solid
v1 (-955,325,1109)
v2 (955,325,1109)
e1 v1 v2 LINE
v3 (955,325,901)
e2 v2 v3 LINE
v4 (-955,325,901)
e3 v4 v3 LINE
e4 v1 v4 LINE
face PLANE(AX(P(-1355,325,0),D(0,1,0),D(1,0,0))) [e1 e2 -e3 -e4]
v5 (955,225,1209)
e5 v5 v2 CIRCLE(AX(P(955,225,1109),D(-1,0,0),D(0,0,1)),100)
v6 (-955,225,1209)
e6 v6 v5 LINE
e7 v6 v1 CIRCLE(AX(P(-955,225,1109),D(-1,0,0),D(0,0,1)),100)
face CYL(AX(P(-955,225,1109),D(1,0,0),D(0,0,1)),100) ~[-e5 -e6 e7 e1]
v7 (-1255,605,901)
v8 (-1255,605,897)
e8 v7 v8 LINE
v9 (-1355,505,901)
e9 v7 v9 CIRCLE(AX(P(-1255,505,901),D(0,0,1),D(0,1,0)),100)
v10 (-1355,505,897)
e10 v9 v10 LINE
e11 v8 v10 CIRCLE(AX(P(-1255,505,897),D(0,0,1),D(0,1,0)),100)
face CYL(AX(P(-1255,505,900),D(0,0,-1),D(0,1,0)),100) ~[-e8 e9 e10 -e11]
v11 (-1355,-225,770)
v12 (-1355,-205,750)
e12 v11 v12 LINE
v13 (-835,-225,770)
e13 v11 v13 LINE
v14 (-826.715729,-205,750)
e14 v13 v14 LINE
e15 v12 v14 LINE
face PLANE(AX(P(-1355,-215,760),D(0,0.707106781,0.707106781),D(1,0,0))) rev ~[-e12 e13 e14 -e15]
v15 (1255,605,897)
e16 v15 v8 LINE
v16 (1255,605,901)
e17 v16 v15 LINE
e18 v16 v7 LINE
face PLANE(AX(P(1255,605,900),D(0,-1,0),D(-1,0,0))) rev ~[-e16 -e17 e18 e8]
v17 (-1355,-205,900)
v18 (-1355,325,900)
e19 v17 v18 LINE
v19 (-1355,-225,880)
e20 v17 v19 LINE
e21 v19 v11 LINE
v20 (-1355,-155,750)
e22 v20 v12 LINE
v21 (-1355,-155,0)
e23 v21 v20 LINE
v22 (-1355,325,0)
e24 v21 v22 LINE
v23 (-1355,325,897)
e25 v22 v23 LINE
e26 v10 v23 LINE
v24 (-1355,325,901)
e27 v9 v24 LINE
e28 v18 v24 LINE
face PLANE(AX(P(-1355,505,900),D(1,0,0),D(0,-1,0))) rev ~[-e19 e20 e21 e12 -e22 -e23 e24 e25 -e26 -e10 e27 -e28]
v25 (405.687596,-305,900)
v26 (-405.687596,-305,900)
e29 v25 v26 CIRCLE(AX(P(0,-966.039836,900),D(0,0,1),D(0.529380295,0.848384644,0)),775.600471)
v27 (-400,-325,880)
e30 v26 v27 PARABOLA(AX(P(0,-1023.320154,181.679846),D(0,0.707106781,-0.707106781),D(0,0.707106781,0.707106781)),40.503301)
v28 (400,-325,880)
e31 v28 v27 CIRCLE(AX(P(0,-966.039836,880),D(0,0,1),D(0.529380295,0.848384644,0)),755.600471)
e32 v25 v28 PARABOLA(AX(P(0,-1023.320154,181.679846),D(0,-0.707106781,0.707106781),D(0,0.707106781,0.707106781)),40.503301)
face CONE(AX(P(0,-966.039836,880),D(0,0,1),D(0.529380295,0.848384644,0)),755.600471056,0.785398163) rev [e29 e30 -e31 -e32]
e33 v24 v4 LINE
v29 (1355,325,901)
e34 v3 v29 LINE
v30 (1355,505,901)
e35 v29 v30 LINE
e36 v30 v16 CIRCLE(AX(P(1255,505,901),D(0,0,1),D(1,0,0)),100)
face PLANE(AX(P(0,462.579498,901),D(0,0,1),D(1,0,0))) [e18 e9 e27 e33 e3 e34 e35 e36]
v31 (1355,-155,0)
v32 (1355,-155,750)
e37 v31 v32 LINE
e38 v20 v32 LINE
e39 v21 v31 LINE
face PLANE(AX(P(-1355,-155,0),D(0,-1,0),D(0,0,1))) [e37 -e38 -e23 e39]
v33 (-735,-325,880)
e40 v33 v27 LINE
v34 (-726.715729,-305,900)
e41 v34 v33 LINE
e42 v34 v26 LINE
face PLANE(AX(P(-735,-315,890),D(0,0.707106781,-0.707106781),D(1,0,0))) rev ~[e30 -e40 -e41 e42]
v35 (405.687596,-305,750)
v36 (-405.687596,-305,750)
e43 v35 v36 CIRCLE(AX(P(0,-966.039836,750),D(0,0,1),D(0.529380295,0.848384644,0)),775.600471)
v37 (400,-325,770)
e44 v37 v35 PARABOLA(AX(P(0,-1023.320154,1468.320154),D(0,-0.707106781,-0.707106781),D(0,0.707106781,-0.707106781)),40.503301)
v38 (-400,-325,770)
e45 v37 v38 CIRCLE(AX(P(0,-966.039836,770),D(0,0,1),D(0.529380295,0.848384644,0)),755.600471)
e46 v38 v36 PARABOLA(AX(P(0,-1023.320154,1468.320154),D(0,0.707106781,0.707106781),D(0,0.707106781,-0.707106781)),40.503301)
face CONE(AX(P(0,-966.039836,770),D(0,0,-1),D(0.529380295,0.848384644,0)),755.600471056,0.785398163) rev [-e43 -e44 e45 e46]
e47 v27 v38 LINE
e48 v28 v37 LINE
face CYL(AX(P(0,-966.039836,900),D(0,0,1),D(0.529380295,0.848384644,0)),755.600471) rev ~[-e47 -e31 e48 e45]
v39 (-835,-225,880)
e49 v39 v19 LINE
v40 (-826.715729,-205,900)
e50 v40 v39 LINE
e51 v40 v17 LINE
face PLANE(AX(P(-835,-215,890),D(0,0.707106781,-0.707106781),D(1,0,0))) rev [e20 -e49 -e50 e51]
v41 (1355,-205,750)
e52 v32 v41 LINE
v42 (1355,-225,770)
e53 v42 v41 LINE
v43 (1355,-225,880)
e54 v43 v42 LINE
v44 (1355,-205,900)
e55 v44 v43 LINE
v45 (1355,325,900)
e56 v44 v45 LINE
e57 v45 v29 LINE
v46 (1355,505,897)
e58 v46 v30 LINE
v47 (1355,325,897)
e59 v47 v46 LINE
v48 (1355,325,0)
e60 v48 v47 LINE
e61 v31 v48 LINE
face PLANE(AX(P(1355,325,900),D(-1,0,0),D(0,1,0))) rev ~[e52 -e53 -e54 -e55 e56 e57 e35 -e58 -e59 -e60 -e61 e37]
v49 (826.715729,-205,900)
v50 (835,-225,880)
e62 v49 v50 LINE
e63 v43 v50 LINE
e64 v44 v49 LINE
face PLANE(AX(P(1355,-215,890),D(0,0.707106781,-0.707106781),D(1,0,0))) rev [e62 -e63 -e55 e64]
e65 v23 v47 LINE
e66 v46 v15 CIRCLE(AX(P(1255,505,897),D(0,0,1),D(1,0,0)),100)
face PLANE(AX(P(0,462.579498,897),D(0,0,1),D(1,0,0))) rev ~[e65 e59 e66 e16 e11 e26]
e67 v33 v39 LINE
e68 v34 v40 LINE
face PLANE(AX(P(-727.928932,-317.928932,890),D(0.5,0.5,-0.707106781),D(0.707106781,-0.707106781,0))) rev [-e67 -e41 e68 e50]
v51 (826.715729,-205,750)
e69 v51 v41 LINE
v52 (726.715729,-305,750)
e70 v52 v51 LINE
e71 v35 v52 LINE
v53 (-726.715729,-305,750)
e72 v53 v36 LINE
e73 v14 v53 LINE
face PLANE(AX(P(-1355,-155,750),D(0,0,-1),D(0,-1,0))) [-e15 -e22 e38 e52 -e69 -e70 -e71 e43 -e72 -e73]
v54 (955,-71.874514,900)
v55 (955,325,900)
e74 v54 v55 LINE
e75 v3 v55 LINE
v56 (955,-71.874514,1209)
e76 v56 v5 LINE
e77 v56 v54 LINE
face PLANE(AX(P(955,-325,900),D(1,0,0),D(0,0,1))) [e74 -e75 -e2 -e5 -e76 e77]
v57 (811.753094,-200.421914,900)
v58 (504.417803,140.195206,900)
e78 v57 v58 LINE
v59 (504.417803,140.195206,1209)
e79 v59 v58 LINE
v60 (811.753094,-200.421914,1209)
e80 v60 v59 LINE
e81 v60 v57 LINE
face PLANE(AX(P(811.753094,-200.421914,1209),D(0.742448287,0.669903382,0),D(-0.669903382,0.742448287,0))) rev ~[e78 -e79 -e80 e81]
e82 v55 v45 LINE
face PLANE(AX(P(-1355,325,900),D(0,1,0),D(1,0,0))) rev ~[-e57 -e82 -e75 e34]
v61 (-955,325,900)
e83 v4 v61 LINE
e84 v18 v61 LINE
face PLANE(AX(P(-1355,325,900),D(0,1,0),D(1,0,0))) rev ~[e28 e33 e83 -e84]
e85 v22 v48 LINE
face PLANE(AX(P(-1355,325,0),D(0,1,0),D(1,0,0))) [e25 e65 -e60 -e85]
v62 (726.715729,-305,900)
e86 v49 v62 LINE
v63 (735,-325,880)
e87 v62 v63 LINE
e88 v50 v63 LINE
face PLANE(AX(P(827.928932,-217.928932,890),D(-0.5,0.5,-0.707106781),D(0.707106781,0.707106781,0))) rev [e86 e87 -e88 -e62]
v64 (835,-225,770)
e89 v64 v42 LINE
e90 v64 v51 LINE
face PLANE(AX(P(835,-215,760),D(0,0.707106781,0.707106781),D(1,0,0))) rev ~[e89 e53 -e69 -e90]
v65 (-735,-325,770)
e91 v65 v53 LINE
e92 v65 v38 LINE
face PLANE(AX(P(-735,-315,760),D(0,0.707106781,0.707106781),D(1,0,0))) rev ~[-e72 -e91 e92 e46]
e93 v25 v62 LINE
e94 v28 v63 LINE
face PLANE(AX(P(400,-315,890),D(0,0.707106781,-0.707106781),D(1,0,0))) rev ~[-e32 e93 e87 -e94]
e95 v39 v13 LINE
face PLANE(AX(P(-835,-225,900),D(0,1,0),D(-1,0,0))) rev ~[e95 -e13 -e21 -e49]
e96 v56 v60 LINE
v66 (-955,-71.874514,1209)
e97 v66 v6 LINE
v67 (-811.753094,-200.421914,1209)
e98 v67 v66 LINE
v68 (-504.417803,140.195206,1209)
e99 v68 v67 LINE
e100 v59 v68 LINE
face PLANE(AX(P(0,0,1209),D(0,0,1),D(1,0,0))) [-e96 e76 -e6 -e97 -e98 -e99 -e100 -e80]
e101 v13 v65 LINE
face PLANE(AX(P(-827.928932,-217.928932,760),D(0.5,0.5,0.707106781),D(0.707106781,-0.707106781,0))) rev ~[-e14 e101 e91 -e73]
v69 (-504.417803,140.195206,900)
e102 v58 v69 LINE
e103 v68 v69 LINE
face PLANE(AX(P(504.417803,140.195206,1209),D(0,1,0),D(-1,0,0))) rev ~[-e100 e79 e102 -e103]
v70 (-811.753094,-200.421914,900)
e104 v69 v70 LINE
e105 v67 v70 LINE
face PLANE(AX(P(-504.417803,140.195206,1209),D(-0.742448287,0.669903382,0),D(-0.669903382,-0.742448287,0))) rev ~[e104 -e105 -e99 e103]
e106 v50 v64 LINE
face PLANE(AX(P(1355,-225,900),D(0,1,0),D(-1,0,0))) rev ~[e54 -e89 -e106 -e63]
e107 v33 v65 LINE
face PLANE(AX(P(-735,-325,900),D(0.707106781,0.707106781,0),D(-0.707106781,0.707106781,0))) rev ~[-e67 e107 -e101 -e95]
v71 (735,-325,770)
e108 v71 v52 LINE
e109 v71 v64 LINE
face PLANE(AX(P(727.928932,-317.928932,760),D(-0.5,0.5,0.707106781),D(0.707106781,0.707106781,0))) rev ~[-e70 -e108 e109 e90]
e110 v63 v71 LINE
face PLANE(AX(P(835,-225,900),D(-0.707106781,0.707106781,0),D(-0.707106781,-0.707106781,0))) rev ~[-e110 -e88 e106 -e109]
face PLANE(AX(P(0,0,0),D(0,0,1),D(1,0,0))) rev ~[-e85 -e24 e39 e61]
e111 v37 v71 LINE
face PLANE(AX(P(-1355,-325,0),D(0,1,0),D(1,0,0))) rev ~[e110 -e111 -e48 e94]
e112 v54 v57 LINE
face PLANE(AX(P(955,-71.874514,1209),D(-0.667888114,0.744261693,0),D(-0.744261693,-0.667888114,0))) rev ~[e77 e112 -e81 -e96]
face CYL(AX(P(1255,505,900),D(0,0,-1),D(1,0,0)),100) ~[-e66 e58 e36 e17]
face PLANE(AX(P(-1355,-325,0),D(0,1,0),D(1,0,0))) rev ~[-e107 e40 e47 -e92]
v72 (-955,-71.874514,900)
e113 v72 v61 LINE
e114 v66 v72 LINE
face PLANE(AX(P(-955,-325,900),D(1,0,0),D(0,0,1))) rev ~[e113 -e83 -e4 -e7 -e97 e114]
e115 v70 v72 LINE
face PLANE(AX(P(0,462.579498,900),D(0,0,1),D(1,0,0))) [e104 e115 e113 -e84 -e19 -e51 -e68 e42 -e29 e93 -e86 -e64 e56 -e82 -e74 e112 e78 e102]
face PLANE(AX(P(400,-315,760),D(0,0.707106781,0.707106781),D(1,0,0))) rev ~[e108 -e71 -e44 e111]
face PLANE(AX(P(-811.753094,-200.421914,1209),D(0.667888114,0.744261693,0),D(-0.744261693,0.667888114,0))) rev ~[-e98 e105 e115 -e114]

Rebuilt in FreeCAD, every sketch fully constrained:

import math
import FreeCAD as App
import Part
import Sketcher

V = App.Vector


def edges_at(feature, points):
    """Names of the edges that pass closest to the given points."""
    edges = feature.Shape.Edges
    near = lambda p: min(range(len(edges)), key=lambda i: edges[i].distToShape(Part.Vertex(*p))[0])
    return sorted({f"Edge{near(p) + 1}" for p in points})

doc = App.newDocument("Part")
params = doc.addObject("Spreadsheet::Sheet", "Params")
for row, (alias, value) in enumerate([
    ("sketch1_width", "2710 mm"),
    ("sketch1_height", "650 mm"),
    ("pad1_length", "1209 mm"),
    ("sketch2_width", "400 mm"),
    ("sketch2_height", "309 mm"),
    ("sketch3_radius", "100 mm"),
    ("sketch3_width", "2710 mm"),
    ("sketch3_height", "180 mm"),
    ("pad2_length", "3 mm"),
    ("pad2_length2", "1 mm"),
    ("sketch4_width", "170 mm"),
    ("sketch4_height", "750 mm"),
    ("fillet_radius", "100 mm"),
    ("sketch5_width", "1910 mm"),
    ("pocket3_length", "309 mm"),
    ("sketch6_width", "800 mm"),
    ("sketch6_width2", "520 mm"),
    ("sketch6_width3", "620 mm"),
    ("chamfer_size", "20 mm"),
], start=1):
    params.set(f"A{row}", alias)
    params.set(f"B{row}", "=" + value)
    params.setAlias(f"B{row}", alias)

body = doc.addObject("PartDesign::Body", "Body")

# Sketch on XY plane
sketch1 = doc.addObject("Sketcher::SketchObject", "Sketch")
body.addObject(sketch1)
sketch1.AttachmentSupport = (doc.XY_Plane, [""])
sketch1.MapMode = "FlatFace"
sketch1.addGeometry([
    Part.LineSegment(V(-1355, 325, 0), V(-1355, -325, 0)),
    Part.LineSegment(V(-1355, -325, 0), V(1355, -325, 0)),
    Part.LineSegment(V(1355, -325, 0), V(1355, 325, 0)),
    Part.LineSegment(V(1355, 325, 0), V(-1355, 325, 0)),
], False)
sketch1.addConstraint([
    Sketcher.Constraint("Coincident", 0, 2, 1, 1),
    Sketcher.Constraint("Coincident", 1, 2, 2, 1),
    Sketcher.Constraint("Coincident", 2, 2, 3, 1),
    Sketcher.Constraint("Coincident", 3, 2, 0, 1),
    Sketcher.Constraint("Vertical", 0),
    Sketcher.Constraint("Horizontal", 1),
    Sketcher.Constraint("Vertical", 2),
    Sketcher.Constraint("Horizontal", 3),
    Sketcher.Constraint("Symmetric", 0, 2, 2, 2, -1, 1),
    Sketcher.Constraint("DistanceX", 1, 1, 1, 2, 2710.0),
    Sketcher.Constraint("DistanceY", 0, 2, 0, 1, 650.0),
])
sketch1.setExpression("Constraints[9]", "Params.sketch1_width")
sketch1.setExpression("Constraints[10]", "Params.sketch1_height")
pad1 = doc.addObject("PartDesign::Pad", "Pad")
body.addObject(pad1)
pad1.Profile = sketch1
pad1.setExpression("Length", "Params.pad1_length")

# Sketch on XZ plane
sketch2 = doc.addObject("Sketcher::SketchObject", "Sketch001")
body.addObject(sketch2)
sketch2.AttachmentSupport = (doc.XZ_Plane, [""])
sketch2.MapMode = "FlatFace"
sketch2.AttachmentOffset = App.Placement(V(0, 0, 325), App.Rotation())
sketch2.addGeometry([
    Part.LineSegment(V(-1355, 1209, 0), V(-1355, 900, 0)),  # 0
    Part.LineSegment(V(-1355, 900, 0), V(-955, 900, 0)),  # 1
    Part.LineSegment(V(-955, 900, 0), V(-955, 1209, 0)),  # 2
    Part.LineSegment(V(-955, 1209, 0), V(-1355, 1209, 0)),  # 3
    Part.LineSegment(V(955, 1209, 0), V(955, 900, 0)),  # 4
    Part.LineSegment(V(955, 900, 0), V(1355, 900, 0)),  # 5
    Part.LineSegment(V(1355, 900, 0), V(1355, 1209, 0)),  # 6
    Part.LineSegment(V(1355, 1209, 0), V(955, 1209, 0)),  # 7
], False)
sketch2.addConstraint([
    Sketcher.Constraint("Coincident", 0, 2, 1, 1),
    Sketcher.Constraint("Coincident", 1, 2, 2, 1),
    Sketcher.Constraint("Coincident", 2, 2, 3, 1),
    Sketcher.Constraint("Coincident", 3, 2, 0, 1),
    Sketcher.Constraint("Coincident", 4, 2, 5, 1),
    Sketcher.Constraint("Coincident", 5, 2, 6, 1),
    Sketcher.Constraint("Coincident", 6, 2, 7, 1),
    Sketcher.Constraint("Coincident", 7, 2, 4, 1),
    Sketcher.Constraint("Vertical", 0),
    Sketcher.Constraint("Horizontal", 1),
    Sketcher.Constraint("Vertical", 2),
    Sketcher.Constraint("Horizontal", 3),
    Sketcher.Constraint("Vertical", 4),
    Sketcher.Constraint("Horizontal", 5),
    Sketcher.Constraint("Vertical", 6),
    Sketcher.Constraint("Horizontal", 7),
    Sketcher.Constraint("Symmetric", 1, 2, 4, 2, -2),
    Sketcher.Constraint("Symmetric", 3, 2, 6, 2, -2),
    Sketcher.Constraint("DistanceX", 1, 1, 1, 2, 400.0),
    Sketcher.Constraint("DistanceY", 0, 2, 0, 1, 309.0),
    Sketcher.Constraint("DistanceX", 0, 2, -1, 1, 1355.0),
    Sketcher.Constraint("DistanceY", -1, 1, 0, 2, 900.0),
])
sketch2.setExpression("Constraints[18]", "Params.sketch2_width")
sketch2.setExpression("Constraints[19]", "Params.sketch2_height")
pocket1 = doc.addObject("PartDesign::Pocket", "Pocket")
body.addObject(pocket1)
pocket1.Profile = sketch2
pocket1.Type = "ThroughAll"

# Sketch on XY plane
sketch3 = doc.addObject("Sketcher::SketchObject", "Sketch002")
body.addObject(sketch3)
sketch3.AttachmentSupport = (doc.XY_Plane, [""])
sketch3.MapMode = "FlatFace"
sketch3.AttachmentOffset = App.Placement(V(0, 0, 900), App.Rotation())
sketch3.addGeometry([
    Part.LineSegment(V(-1355, 505, 0), V(-1355, 325, 0)),  # 0
    Part.LineSegment(V(-1355, 325, 0), V(1355, 325, 0)),  # 1
    Part.LineSegment(V(1355, 325, 0), V(1355, 505, 0)),  # 2
    Part.ArcOfCircle(Part.Circle(V(1255, 505, 0), V(0, 0, 1), 100), math.radians(0), math.radians(90)),  # 3
    Part.LineSegment(V(1255, 605, 0), V(-1255, 605, 0)),  # 4
    Part.ArcOfCircle(Part.Circle(V(-1255, 505, 0), V(0, 0, 1), 100), math.radians(90), math.radians(180)),  # 5
], False)
sketch3.addConstraint([
    Sketcher.Constraint("Coincident", 0, 2, 1, 1),
    Sketcher.Constraint("Coincident", 1, 2, 2, 1),
    Sketcher.Constraint("Tangent", 2, 2, 3, 1),
    Sketcher.Constraint("Tangent", 3, 2, 4, 1),
    Sketcher.Constraint("Tangent", 4, 2, 5, 1),
    Sketcher.Constraint("Tangent", 5, 2, 0, 1),
    Sketcher.Constraint("Vertical", 0),
    Sketcher.Constraint("Horizontal", 1),
    Sketcher.Constraint("Vertical", 2),
    Sketcher.Constraint("Horizontal", 4),
    Sketcher.Constraint("Equal", 3, 5),
    Sketcher.Constraint("Radius", 3, 100.0),
    Sketcher.Constraint("DistanceX", 1, 1, 1, 2, 2710.0),
    Sketcher.Constraint("DistanceY", 0, 2, 0, 1, 180.0),
    Sketcher.Constraint("DistanceX", -1, 1, 3, 3, 1255.0),
    Sketcher.Constraint("DistanceY", -1, 1, 3, 3, 505.0),
])
sketch3.setExpression("Constraints[11]", "Params.sketch3_radius")
sketch3.setExpression("Constraints[12]", "Params.sketch3_width")
sketch3.setExpression("Constraints[13]", "Params.sketch3_height")
pad2 = doc.addObject("PartDesign::Pad", "Pad001")
body.addObject(pad2)
pad2.Profile = sketch3
pad2.Type = "TwoLengths"
pad2.setExpression("Length", "Params.pad2_length")
pad2.setExpression("Length2", "Params.pad2_length2")
pad2.Reversed = True

# Sketch on YZ plane
sketch4 = doc.addObject("Sketcher::SketchObject", "Sketch003")
body.addObject(sketch4)
sketch4.AttachmentSupport = (doc.YZ_Plane, [""])
sketch4.MapMode = "FlatFace"
sketch4.AttachmentOffset = App.Placement(V(0, 0, -1355), App.Rotation())
sketch4.addGeometry([
    Part.LineSegment(V(-155, 750, 0), V(-155, 0, 0)),
    Part.LineSegment(V(-155, 0, 0), V(-325, 0, 0)),
    Part.LineSegment(V(-325, 0, 0), V(-325, 750, 0)),
    Part.LineSegment(V(-325, 750, 0), V(-155, 750, 0)),
], False)
sketch4.addConstraint([
    Sketcher.Constraint("Coincident", 0, 2, 1, 1),
    Sketcher.Constraint("Coincident", 1, 2, 2, 1),
    Sketcher.Constraint("Coincident", 2, 2, 3, 1),
    Sketcher.Constraint("Coincident", 3, 2, 0, 1),
    Sketcher.Constraint("Vertical", 0),
    Sketcher.Constraint("Horizontal", 1),
    Sketcher.Constraint("Vertical", 2),
    Sketcher.Constraint("Horizontal", 3),
    Sketcher.Constraint("PointOnObject", 0, 2, -1),
    Sketcher.Constraint("DistanceX", 1, 2, 1, 1, 170.0),
    Sketcher.Constraint("DistanceY", 0, 2, 0, 1, 750.0),
    Sketcher.Constraint("DistanceX", 0, 2, -1, 1, 155.0),
])
sketch4.setExpression("Constraints[9]", "Params.sketch4_width")
sketch4.setExpression("Constraints[10]", "Params.sketch4_height")
pocket2 = doc.addObject("PartDesign::Pocket", "Pocket001")
body.addObject(pocket2)
pocket2.Profile = sketch4
pocket2.Type = "ThroughAll"
pocket2.Reversed = True
doc.recompute()

fillet = doc.addObject("PartDesign::Fillet", "Fillet")
body.addObject(fillet)
fillet.Base = (pocket2, edges_at(pocket2, [(0, 325, 1209)]))
fillet.setExpression("Radius", "Params.fillet_radius")

# Sketch on XY plane
sketch5 = doc.addObject("Sketcher::SketchObject", "Sketch004")
body.addObject(sketch5)
sketch5.AttachmentSupport = (doc.XY_Plane, [""])
sketch5.MapMode = "FlatFace"
sketch5.AttachmentOffset = App.Placement(V(0, 0, 1209), App.Rotation())
sketch5.addGeometry([
    Part.LineSegment(V(-812, -200, 0), V(-955, -72, 0)),  # 0
    Part.LineSegment(V(-955, -72, 0), V(-955, -325, 0)),  # 1
    Part.LineSegment(V(-955, -325, 0), V(955, -325, 0)),  # 2
    Part.LineSegment(V(955, -325, 0), V(955, -72, 0)),  # 3
    Part.LineSegment(V(955, -72, 0), V(812, -200, 0)),  # 4
    Part.LineSegment(V(812, -200, 0), V(504, 140, 0)),  # 5
    Part.LineSegment(V(504, 140, 0), V(-504, 140, 0)),  # 6
    Part.LineSegment(V(-504, 140, 0), V(-812, -200, 0)),  # 7
], False)
sketch5.addConstraint([
    Sketcher.Constraint("Coincident", 0, 2, 1, 1),
    Sketcher.Constraint("Coincident", 1, 2, 2, 1),
    Sketcher.Constraint("Coincident", 2, 2, 3, 1),
    Sketcher.Constraint("Coincident", 3, 2, 4, 1),
    Sketcher.Constraint("Coincident", 4, 2, 5, 1),
    Sketcher.Constraint("Coincident", 5, 2, 6, 1),
    Sketcher.Constraint("Coincident", 6, 2, 7, 1),
    Sketcher.Constraint("Coincident", 7, 2, 0, 1),
    Sketcher.Constraint("Vertical", 1),
    Sketcher.Constraint("Horizontal", 2),
    Sketcher.Constraint("Vertical", 3),
    Sketcher.Constraint("Horizontal", 6),
    Sketcher.Constraint("Symmetric", 0, 2, 3, 2, -2),
    Sketcher.Constraint("Symmetric", 4, 2, 7, 2, -2),
    Sketcher.Constraint("Equal", 5, 7),
    Sketcher.Constraint("DistanceX", 2, 1, 2, 2, 1910.0),
    Sketcher.Constraint("DistanceY", 1, 2, -1, 1, 325.0),
    Sketcher.Constraint("DistanceY", 4, 2, 3, 2, 128.5474),
    Sketcher.Constraint("Distance", 5, 458.775549),
    Sketcher.Constraint("DistanceX", 6, 2, 6, 1, 1008.835605),
    Sketcher.Constraint("DistanceY", 1, 2, 1, 1, 253.125486),
    Sketcher.Constraint("DistanceX", 5, 2, 4, 2, 307.335292),
])
sketch5.setExpression("Constraints[15]", "Params.sketch5_width")
pocket3 = doc.addObject("PartDesign::Pocket", "Pocket002")
body.addObject(pocket3)
pocket3.Profile = sketch5
pocket3.setExpression("Length", "Params.pocket3_length")

# Sketch on XY plane
sketch6 = doc.addObject("Sketcher::SketchObject", "Sketch005")
body.addObject(sketch6)
sketch6.AttachmentSupport = (doc.XY_Plane, [""])
sketch6.MapMode = "FlatFace"
sketch6.AttachmentOffset = App.Placement(V(0, 0, 900), App.Rotation())
sketch6.addGeometry([
    Part.LineSegment(V(-400, -325, 0), V(400, -325, 0)),  # 0
    Part.ArcOfCircle(Part.Circle(V(0, -966, 0), V(0, 0, 1), 756), math.radians(58), math.radians(122)),  # 1
    Part.LineSegment(V(-735, -325, 0), V(-835, -225, 0)),  # 2
    Part.LineSegment(V(-835, -225, 0), V(-1355, -225, 0)),  # 3
    Part.LineSegment(V(-1355, -225, 0), V(-1355, -325, 0)),  # 4
    Part.LineSegment(V(-1355, -325, 0), V(-735, -325, 0)),  # 5
    Part.LineSegment(V(1355, -225, 0), V(835, -225, 0)),  # 6
    Part.LineSegment(V(835, -225, 0), V(735, -325, 0)),  # 7
    Part.LineSegment(V(735, -325, 0), V(1355, -325, 0)),  # 8
    Part.LineSegment(V(1355, -325, 0), V(1355, -225, 0)),  # 9
], False)
sketch6.addConstraint([
    Sketcher.Constraint("Coincident", 0, 1, 1, 2),
    Sketcher.Constraint("Coincident", 1, 1, 0, 2),
    Sketcher.Constraint("Coincident", 2, 2, 3, 1),
    Sketcher.Constraint("Coincident", 3, 2, 4, 1),
    Sketcher.Constraint("Coincident", 4, 2, 5, 1),
    Sketcher.Constraint("Coincident", 5, 2, 2, 1),
    Sketcher.Constraint("Coincident", 6, 2, 7, 1),
    Sketcher.Constraint("Coincident", 7, 2, 8, 1),
    Sketcher.Constraint("Coincident", 8, 2, 9, 1),
    Sketcher.Constraint("Coincident", 9, 2, 6, 1),
    Sketcher.Constraint("Horizontal", 0),
    Sketcher.Constraint("Horizontal", 3),
    Sketcher.Constraint("Vertical", 4),
    Sketcher.Constraint("Horizontal", 5),
    Sketcher.Constraint("Horizontal", 6),
    Sketcher.Constraint("Horizontal", 8),
    Sketcher.Constraint("Vertical", 9),
    Sketcher.Constraint("Symmetric", 2, 2, 6, 2, -2),
    Sketcher.Constraint("Symmetric", 5, 2, 7, 2, -2),
    Sketcher.Constraint("PointOnObject", 1, 3, -2),
    Sketcher.Constraint("Perpendicular", 2, 7),
    Sketcher.Constraint("Equal", 3, 6),
    Sketcher.Constraint("DistanceX", 0, 1, 0, 2, 800.0),
    Sketcher.Constraint("DistanceX", 3, 2, 3, 1, 520.0),
    Sketcher.Constraint("DistanceX", 5, 1, 5, 2, 620.0),
    Sketcher.Constraint("DistanceY", 0, 1, -1, 1, 325.0),
    Sketcher.Constraint("DistanceX", 2, 2, -1, 1, 835.0),
    Sketcher.Constraint("DistanceY", 2, 2, -1, 1, 225.0),
    Sketcher.Constraint("Radius", 1, 755.600471),
])
sketch6.setExpression("Constraints[22]", "Params.sketch6_width")
sketch6.setExpression("Constraints[23]", "Params.sketch6_width2")
sketch6.setExpression("Constraints[24]", "Params.sketch6_width3")
pocket4 = doc.addObject("PartDesign::Pocket", "Pocket003")
body.addObject(pocket4)
pocket4.Profile = sketch6
pocket4.Type = "ThroughAll"
doc.recompute()

chamfer = doc.addObject("PartDesign::Chamfer", "Chamfer")
body.addObject(chamfer)
chamfer.Base = (pocket4, edges_at(pocket4, [
    (-1095, -225, 900),
    (-785, -275, 900),
    (-567.5, -325, 900),
    (0, -210.439, 900),
    (567.5, -325, 900),
    (1095, -225, 900),
    (-1095, -225, 750),
    (-785, -275, 750),
    (-567.5, -325, 750),
    (0, -210.439, 750),
    (567.5, -325, 750),
    (1095, -225, 750),
    (785, -275, 900),
    (785, -275, 750),
]))
chamfer.setExpression("Size", "Params.chamfer_size")

doc.recompute()
